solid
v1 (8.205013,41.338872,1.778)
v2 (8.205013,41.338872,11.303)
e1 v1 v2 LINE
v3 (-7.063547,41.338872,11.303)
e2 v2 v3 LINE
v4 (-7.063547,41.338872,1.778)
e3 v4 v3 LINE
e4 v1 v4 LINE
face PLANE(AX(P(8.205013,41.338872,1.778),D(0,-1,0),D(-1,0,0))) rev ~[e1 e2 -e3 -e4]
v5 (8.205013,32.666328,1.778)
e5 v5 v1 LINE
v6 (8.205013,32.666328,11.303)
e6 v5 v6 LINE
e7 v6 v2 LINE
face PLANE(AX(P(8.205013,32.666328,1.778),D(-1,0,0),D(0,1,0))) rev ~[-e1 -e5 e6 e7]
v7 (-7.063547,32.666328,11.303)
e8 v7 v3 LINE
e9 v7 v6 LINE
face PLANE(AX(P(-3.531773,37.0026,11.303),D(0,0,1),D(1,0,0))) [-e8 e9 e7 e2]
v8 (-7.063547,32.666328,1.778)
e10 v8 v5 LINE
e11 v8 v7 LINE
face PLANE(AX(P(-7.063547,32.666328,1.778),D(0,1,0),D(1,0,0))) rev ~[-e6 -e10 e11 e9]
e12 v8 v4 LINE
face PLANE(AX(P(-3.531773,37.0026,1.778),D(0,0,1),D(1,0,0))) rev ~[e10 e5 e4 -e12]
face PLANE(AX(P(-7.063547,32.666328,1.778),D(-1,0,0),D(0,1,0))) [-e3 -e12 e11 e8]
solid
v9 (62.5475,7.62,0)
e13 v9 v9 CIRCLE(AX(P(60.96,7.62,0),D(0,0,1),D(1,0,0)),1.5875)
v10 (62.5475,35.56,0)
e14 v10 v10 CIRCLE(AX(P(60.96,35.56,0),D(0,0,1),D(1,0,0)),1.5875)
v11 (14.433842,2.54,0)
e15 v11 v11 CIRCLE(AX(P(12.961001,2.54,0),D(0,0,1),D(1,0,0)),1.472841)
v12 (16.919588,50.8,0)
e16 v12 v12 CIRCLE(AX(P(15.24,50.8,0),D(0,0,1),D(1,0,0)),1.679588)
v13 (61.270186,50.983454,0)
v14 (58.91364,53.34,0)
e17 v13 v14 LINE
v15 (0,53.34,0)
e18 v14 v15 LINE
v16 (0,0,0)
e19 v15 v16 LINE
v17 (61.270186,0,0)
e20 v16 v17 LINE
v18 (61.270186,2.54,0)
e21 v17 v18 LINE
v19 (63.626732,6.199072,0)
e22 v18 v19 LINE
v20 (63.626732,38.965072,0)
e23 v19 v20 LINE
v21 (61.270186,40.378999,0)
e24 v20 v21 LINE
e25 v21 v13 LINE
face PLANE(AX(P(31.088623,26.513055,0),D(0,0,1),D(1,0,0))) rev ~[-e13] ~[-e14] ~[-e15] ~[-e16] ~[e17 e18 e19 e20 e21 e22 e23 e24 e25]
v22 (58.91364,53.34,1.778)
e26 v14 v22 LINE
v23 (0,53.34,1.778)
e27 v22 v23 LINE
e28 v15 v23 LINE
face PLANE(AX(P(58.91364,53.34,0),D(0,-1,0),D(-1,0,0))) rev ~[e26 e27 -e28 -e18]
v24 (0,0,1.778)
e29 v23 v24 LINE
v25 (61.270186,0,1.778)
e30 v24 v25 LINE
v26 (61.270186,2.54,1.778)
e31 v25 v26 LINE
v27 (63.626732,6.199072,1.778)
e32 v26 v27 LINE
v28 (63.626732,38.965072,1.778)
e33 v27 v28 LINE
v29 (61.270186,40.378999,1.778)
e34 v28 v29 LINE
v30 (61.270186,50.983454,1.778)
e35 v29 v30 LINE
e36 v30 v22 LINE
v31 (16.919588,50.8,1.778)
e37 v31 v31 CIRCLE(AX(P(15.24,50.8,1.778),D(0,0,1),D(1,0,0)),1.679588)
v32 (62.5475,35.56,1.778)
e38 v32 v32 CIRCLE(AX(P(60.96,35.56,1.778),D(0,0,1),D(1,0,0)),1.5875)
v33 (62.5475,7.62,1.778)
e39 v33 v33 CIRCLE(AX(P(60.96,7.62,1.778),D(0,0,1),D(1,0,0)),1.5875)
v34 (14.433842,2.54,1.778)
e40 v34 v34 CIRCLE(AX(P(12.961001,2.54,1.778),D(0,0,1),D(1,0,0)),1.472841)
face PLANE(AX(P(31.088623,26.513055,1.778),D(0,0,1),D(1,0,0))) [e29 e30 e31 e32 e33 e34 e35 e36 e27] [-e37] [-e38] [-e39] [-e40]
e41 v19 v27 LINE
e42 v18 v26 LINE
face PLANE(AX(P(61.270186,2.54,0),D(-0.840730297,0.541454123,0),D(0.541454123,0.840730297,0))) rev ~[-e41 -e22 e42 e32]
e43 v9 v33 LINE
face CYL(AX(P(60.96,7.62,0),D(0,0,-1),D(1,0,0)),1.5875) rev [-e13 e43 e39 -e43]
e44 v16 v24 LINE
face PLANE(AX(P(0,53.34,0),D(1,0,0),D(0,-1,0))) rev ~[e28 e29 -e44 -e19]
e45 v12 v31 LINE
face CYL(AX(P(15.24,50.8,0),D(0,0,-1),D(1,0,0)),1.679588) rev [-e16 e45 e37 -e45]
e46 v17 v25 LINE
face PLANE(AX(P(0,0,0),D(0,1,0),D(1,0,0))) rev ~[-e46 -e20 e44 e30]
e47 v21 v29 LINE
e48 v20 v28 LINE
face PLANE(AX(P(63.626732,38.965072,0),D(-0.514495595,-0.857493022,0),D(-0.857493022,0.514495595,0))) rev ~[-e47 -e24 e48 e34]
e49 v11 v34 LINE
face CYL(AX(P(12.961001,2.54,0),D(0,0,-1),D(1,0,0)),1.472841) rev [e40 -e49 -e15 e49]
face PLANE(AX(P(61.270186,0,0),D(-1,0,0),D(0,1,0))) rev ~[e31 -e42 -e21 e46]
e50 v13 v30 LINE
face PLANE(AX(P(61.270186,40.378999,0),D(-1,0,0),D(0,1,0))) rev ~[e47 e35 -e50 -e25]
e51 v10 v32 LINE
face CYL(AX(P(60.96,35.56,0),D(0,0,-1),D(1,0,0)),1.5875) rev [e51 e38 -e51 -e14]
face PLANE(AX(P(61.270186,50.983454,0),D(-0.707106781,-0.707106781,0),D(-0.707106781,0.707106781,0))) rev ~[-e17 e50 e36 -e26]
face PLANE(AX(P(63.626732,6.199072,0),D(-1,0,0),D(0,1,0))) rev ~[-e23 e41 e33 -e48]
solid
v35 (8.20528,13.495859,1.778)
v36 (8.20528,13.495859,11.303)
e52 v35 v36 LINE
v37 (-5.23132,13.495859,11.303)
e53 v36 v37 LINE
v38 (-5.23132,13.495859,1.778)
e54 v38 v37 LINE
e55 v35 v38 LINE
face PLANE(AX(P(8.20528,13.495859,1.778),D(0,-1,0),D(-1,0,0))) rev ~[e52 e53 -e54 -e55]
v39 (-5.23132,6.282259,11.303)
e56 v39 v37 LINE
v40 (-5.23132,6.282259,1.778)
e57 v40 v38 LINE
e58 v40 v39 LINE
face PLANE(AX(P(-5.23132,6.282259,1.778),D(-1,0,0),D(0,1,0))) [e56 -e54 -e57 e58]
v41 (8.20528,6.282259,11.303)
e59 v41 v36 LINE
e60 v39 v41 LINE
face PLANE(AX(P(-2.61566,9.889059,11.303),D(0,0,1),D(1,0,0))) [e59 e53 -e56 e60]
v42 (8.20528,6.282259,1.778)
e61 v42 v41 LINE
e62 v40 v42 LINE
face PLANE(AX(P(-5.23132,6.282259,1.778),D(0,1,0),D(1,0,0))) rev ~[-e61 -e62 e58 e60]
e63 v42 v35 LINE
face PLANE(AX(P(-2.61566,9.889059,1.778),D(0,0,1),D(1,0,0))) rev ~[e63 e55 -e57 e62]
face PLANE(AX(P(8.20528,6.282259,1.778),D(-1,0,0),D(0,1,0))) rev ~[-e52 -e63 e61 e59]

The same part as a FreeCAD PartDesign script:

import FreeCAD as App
import Part
import Sketcher
Q = App.Units.Quantity

doc = App.newDocument("Part")
body = doc.addObject("PartDesign::Body", "Body")

# Sketch on XY plane
sketch1 = body.newObject("Sketcher::SketchObject", "Sketch")
sketch1.AttachmentSupport = (doc.getObject("XY_Plane"), [""])
sketch1.MapMode = "FlatFace"
sketch1.addGeometry(Part.LineSegment(App.Vector(0, 53.34, 0), App.Vector(0, 0, 0)), False)
sketch1.addGeometry(Part.LineSegment(App.Vector(0, 0, 0), App.Vector(61.270186, 0, 0)), False)
sketch1.addGeometry(Part.LineSegment(App.Vector(61.270186, 0, 0), App.Vector(61.270186, 2.54, 0)), False)
sketch1.addGeometry(Part.LineSegment(App.Vector(61.270186, 2.54, 0), App.Vector(63.626732, 6.199072, 0)), False)
sketch1.addGeometry(Part.LineSegment(App.Vector(63.626732, 6.199072, 0), App.Vector(63.626732, 38.965072, 0)), False)
sketch1.addGeometry(Part.LineSegment(App.Vector(63.626732, 38.965072, 0), App.Vector(61.270186, 40.378999, 0)), False)
sketch1.addGeometry(Part.LineSegment(App.Vector(61.270186, 40.378999, 0), App.Vector(61.270186, 50.983454, 0)), False)
sketch1.addGeometry(Part.LineSegment(App.Vector(61.270186, 50.983454, 0), App.Vector(58.91364, 53.34, 0)), False)
sketch1.addGeometry(Part.LineSegment(App.Vector(58.91364, 53.34, 0), App.Vector(0, 53.34, 0)), False)
sketch1.addGeometry(Part.Circle(App.Vector(12.961001, 2.54, 0), App.Vector(0, 0, 1), 1.472841), False)
sketch1.addGeometry(Part.Circle(App.Vector(60.96, 7.62, 0), App.Vector(0, 0, 1), 1.5875), False)
sketch1.addGeometry(Part.Circle(App.Vector(15.24, 50.8, 0), App.Vector(0, 0, 1), 1.679588), False)
sketch1.addGeometry(Part.Circle(App.Vector(60.96, 35.56, 0), App.Vector(0, 0, 1), 1.5875), False)
sketch1.addConstraint(Sketcher.Constraint("Coincident", 0, 2, 1, 1))
sketch1.addConstraint(Sketcher.Constraint("Coincident", 1, 2, 2, 1))
sketch1.addConstraint(Sketcher.Constraint("Coincident", 2, 2, 3, 1))
sketch1.addConstraint(Sketcher.Constraint("Coincident", 3, 2, 4, 1))
sketch1.addConstraint(Sketcher.Constraint("Coincident", 4, 2, 5, 1))
sketch1.addConstraint(Sketcher.Constraint("Coincident", 5, 2, 6, 1))
sketch1.addConstraint(Sketcher.Constraint("Coincident", 6, 2, 7, 1))
sketch1.addConstraint(Sketcher.Constraint("Coincident", 7, 2, 8, 1))
sketch1.addConstraint(Sketcher.Constraint("Coincident", 8, 2, 0, 1))
sketch1.addConstraint(Sketcher.Constraint("Vertical", 0))
sketch1.addConstraint(Sketcher.Constraint("Horizontal", 1))
sketch1.addConstraint(Sketcher.Constraint("Vertical", 2))
sketch1.addConstraint(Sketcher.Constraint("Vertical", 4))
sketch1.addConstraint(Sketcher.Constraint("Vertical", 6))
sketch1.addConstraint(Sketcher.Constraint("Horizontal", 8))
sketch1.addConstraint(Sketcher.Constraint("Coincident", 0, 2, -1, 1))
sketch1.addConstraint(Sketcher.Constraint("Equal", 10, 12))
sketch1.addConstraint(Sketcher.Constraint("Horizontal", 9, 3, 2, 2))
sketch1.addConstraint(Sketcher.Constraint("Vertical", 10, 3, 12, 3))
sketch1.addConstraint(Sketcher.Constraint("Vertical", 2, 2, 5, 2))
sketch1.addConstraint(Sketcher.Constraint("Diameter", 10, Q("0.125 in")))
sketch1.addConstraint(Sketcher.Constraint("DistanceY", 0, 2, 0, 1, Q("2.1 in")))
sketch1.addConstraint(Sketcher.Constraint("DistanceY", 2, 1, 2, 2, Q("0.1 in")))
sketch1.addConstraint(Sketcher.Constraint("DistanceY", -1, 1, 11, 3, Q("2 in")))
sketch1.addConstraint(Sketcher.Constraint("Angle", 7, Q("135 deg")))
sketch1.addConstraint(Sketcher.Constraint("DistanceY", 4, 1, 4, 2, Q("1.29 in")))
sketch1.addConstraint(Sketcher.Constraint("DistanceX", -1, 1, 10, 3, Q("2.4 in")))
sketch1.addConstraint(Sketcher.Constraint("DistanceY", -1, 1, 10, 3, Q("0.3 in")))
sketch1.addConstraint(Sketcher.Constraint("DistanceX", -1, 1, 11, 3, Q("0.6 in")))
sketch1.addConstraint(Sketcher.Constraint("DistanceY", -1, 1, 12, 3, Q("1.4 in")))
sketch1.addConstraint(Sketcher.Constraint("Diameter", 9, 2.945682))
sketch1.addConstraint(Sketcher.Constraint("Diameter", 11, 3.359176))
sketch1.addConstraint(Sketcher.Constraint("DistanceX", 8, 2, 8, 1, 58.91364))
sketch1.addConstraint(Sketcher.Constraint("DistanceX", -1, 1, 9, 3, 12.961001))
sketch1.addConstraint(Sketcher.Constraint("DistanceY", -1, 1, 5, 2, 40.378999))
sketch1.addConstraint(Sketcher.Constraint("Distance", 5, 2.748181))
sketch1.addConstraint(Sketcher.Constraint("Distance", 7, 3.332659))
sketch1.addConstraint(Sketcher.Constraint("DistanceX", -1, 1, 3, 2, 63.626732))
pad1 = body.newObject("PartDesign::Pad", "Pad")
pad1.Profile = sketch1
pad1.Length = Q("0.07 in")
body2 = doc.addObject("PartDesign::Body", "Body001")
body2.AllowCompound = True

# Sketch on XY plane
sketch2 = body2.newObject("Sketcher::SketchObject", "Sketch001")
sketch2.AttachmentSupport = (doc.getObject("XY_Plane001"), [""])
sketch2.MapMode = "FlatFace"
sketch2.AttachmentOffset = App.Placement(App.Vector(0, 0, 0.07 * 25.4), App.Rotation())
sketch2.addGeometry(Part.LineSegment(App.Vector(-7.063547, 41.338872, 0), App.Vector(-7.063547, 32.666328, 0)), False)
sketch2.addGeometry(Part.LineSegment(App.Vector(-7.063547, 32.666328, 0), App.Vector(8.205013, 32.666328, 0)), False)
sketch2.addGeometry(Part.LineSegment(App.Vector(8.205013, 32.666328, 0), App.Vector(8.205013, 41.338872, 0)), False)
sketch2.addGeometry(Part.LineSegment(App.Vector(8.205013, 41.338872, 0), App.Vector(-7.063547, 41.338872, 0)), False)
sketch2.addGeometry(Part.LineSegment(App.Vector(-5.23132, 13.495859, 0), App.Vector(-5.23132, 6.282259, 0)), False)
sketch2.addGeometry(Part.LineSegment(App.Vector(-5.23132, 6.282259, 0), App.Vector(8.20528, 6.282259, 0)), False)
sketch2.addGeometry(Part.LineSegment(App.Vector(8.20528, 6.282259, 0), App.Vector(8.20528, 13.495859, 0)), False)
sketch2.addGeometry(Part.LineSegment(App.Vector(8.20528, 13.495859, 0), App.Vector(-5.23132, 13.495859, 0)), False)
sketch2.addConstraint(Sketcher.Constraint("Coincident", 0, 2, 1, 1))
sketch2.addConstraint(Sketcher.Constraint("Coincident", 1, 2, 2, 1))
sketch2.addConstraint(Sketcher.Constraint("Coincident", 2, 2, 3, 1))
sketch2.addConstraint(Sketcher.Constraint("Coincident", 3, 2, 0, 1))
sketch2.addConstraint(Sketcher.Constraint("Coincident", 4, 2, 5, 1))
sketch2.addConstraint(Sketcher.Constraint("Coincident", 5, 2, 6, 1))
sketch2.addConstraint(Sketcher.Constraint("Coincident", 6, 2, 7, 1))
sketch2.addConstraint(Sketcher.Constraint("Coincident", 7, 2, 4, 1))
sketch2.addConstraint(Sketcher.Constraint("Vertical", 0))
sketch2.addConstraint(Sketcher.Constraint("Horizontal", 1))
sketch2.addConstraint(Sketcher.Constraint("Vertical", 2))
sketch2.addConstraint(Sketcher.Constraint("Horizontal", 3))
sketch2.addConstraint(Sketcher.Constraint("Vertical", 4))
sketch2.addConstraint(Sketcher.Constraint("Horizontal", 5))
sketch2.addConstraint(Sketcher.Constraint("Vertical", 6))
sketch2.addConstraint(Sketcher.Constraint("Horizontal", 7))
sketch2.addConstraint(Sketcher.Constraint("DistanceX", 5, 1, 5, 2, Q("0.529 in")))
sketch2.addConstraint(Sketcher.Constraint("DistanceY", 4, 2, 4, 1, Q("0.284 in")))
sketch2.addConstraint(Sketcher.Constraint("DistanceX", 1, 1, 1, 2, 15.268559))
sketch2.addConstraint(Sketcher.Constraint("DistanceY", 0, 2, 0, 1, 8.672543))
sketch2.addConstraint(Sketcher.Constraint("DistanceY", -1, 1, 0, 2, 32.666328))
sketch2.addConstraint(Sketcher.Constraint("DistanceX", 4, 2, -1, 1, 5.23132))
sketch2.addConstraint(Sketcher.Constraint("DistanceY", -1, 1, 4, 2, 6.282259))
sketch2.addConstraint(Sketcher.Constraint("DistanceX", 0, 2, -1, 1, 7.063547))
pad2 = body2.newObject("PartDesign::Pad", "Pad001")
pad2.Profile = sketch2
pad2.Length = Q("0.375 in")

doc.recompute()
